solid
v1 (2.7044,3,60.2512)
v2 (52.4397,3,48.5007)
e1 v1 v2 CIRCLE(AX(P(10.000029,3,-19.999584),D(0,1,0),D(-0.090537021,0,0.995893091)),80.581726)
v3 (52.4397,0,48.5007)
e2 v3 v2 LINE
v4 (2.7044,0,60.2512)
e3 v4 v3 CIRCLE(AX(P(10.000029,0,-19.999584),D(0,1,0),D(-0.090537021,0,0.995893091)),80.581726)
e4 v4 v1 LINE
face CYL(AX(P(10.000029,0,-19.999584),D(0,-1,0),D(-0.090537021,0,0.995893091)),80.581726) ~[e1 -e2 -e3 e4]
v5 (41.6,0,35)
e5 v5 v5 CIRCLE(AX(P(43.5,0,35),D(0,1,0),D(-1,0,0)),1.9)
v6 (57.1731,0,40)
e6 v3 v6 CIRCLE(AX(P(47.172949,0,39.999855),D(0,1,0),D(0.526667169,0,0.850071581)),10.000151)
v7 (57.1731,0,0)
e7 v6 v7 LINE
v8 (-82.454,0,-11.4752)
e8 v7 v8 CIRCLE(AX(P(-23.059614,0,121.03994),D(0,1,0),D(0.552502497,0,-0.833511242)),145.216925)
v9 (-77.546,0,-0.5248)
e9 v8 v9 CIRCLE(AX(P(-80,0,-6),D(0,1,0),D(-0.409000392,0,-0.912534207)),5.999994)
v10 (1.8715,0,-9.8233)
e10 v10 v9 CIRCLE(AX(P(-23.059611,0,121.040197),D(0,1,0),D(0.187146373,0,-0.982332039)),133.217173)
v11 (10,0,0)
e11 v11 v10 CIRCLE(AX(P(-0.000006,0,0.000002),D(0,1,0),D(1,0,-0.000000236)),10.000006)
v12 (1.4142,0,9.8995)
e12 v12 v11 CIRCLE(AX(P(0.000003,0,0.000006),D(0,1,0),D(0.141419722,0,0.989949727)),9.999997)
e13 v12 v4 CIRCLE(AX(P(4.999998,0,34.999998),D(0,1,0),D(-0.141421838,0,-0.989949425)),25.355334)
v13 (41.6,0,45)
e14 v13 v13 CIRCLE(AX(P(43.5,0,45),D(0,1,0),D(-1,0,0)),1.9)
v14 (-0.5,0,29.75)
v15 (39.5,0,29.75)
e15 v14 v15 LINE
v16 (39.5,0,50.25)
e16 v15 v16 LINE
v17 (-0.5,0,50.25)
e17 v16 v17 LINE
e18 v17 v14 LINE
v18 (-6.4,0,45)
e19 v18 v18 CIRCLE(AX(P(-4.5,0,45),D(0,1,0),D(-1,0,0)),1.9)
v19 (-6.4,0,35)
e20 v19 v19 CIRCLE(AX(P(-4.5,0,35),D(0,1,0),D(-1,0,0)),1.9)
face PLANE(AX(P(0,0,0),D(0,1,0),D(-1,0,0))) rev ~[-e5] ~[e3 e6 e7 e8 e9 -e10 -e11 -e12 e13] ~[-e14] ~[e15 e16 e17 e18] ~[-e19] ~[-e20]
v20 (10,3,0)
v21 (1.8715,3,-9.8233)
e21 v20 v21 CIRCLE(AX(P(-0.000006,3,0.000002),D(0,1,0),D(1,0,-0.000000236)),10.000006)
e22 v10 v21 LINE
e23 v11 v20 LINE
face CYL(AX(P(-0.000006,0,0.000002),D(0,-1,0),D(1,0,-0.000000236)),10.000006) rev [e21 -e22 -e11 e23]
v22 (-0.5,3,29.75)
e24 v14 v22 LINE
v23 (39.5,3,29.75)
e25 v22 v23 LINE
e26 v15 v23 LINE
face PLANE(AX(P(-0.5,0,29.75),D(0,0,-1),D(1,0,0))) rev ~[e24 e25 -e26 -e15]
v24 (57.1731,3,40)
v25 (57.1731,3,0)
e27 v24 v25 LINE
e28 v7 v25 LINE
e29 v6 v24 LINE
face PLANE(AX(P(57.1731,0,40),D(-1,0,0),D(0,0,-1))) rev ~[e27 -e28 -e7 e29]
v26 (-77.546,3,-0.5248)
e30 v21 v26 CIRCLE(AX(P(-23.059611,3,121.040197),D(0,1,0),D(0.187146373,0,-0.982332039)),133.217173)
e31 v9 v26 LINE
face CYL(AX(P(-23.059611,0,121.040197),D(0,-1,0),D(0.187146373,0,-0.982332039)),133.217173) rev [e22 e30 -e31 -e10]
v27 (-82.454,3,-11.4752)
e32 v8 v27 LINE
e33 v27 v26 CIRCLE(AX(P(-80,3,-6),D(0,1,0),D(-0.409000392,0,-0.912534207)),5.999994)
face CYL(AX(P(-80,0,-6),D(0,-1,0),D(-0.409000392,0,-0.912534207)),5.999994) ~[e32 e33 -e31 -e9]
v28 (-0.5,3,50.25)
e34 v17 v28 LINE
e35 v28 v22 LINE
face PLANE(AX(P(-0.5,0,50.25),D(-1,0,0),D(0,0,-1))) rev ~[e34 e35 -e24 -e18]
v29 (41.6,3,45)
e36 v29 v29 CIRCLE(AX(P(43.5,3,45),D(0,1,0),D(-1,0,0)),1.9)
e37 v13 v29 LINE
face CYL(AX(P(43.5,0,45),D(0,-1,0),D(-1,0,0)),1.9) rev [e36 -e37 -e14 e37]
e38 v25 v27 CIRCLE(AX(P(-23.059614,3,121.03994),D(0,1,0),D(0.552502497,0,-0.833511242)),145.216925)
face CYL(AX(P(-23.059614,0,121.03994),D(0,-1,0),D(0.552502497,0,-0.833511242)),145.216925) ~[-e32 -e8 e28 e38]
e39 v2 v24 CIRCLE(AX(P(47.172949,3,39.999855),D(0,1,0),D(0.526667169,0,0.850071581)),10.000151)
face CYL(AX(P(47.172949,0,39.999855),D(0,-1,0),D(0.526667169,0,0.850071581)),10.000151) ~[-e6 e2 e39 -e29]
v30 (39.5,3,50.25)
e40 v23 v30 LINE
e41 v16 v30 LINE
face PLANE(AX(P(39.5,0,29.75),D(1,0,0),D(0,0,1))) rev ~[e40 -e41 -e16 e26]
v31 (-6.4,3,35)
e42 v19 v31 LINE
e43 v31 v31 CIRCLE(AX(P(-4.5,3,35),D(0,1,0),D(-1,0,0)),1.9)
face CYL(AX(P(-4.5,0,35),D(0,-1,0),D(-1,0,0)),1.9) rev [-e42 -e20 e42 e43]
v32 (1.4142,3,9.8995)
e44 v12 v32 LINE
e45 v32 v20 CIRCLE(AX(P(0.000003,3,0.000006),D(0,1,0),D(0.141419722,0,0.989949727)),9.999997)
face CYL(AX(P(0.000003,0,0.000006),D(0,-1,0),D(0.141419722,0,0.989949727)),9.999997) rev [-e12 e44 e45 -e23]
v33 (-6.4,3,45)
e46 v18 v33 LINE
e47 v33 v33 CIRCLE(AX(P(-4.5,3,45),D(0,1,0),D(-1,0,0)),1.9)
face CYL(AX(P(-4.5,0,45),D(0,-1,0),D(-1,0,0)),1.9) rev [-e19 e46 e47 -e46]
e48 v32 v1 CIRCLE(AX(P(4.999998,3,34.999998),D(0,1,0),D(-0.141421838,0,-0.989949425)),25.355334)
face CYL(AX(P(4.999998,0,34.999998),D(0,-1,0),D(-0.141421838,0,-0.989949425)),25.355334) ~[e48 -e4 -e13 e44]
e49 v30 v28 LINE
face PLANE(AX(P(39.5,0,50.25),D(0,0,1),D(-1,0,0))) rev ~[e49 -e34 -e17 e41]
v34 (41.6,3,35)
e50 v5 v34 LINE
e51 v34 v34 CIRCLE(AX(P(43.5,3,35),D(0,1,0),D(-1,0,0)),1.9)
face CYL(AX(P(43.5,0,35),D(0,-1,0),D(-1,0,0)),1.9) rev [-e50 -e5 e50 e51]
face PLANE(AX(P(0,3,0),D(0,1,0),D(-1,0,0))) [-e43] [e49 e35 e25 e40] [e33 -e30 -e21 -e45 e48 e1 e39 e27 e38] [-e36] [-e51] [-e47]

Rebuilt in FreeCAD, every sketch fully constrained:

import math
import FreeCAD as App
import Part
import Sketcher

V = App.Vector
Q = App.Units.Quantity


def add_polygon(sketch, points):
    """Adds a closed chain of lines whose ends are joined by coincident constraints."""
    first, n = sketch.GeometryCount, len(points)
    for a, b in zip(points, points[1:] + points[:1]):
        sketch.addGeometry(Part.LineSegment(App.Vector(*a, 0), App.Vector(*b, 0)), False)
    for i in range(n):
        sketch.addConstraint(Sketcher.Constraint("Coincident", first + i, 2, first + (i + 1) % n, 1))

doc = App.newDocument("Part")
body = doc.addObject("PartDesign::Body", "Body")

# Sketch on XZ plane
sketch1 = doc.addObject("Sketcher::SketchObject", "Sketch")
body.addObject(sketch1)
sketch1.AttachmentSupport = (doc.XZ_Plane, [""])
sketch1.MapMode = "FlatFace"
sketch1.addGeometry(Part.ArcOfCircle(Part.Circle(V(0, 0, 0), V(0, 0, 1), 10), math.radians(0), math.radians(82)), False)  # 0
sketch1.addGeometry(Part.ArcOfCircle(Part.Circle(V(5, 35, 0), V(0, 0, 1), 25.4), math.radians(95), math.radians(262)), False)  # 1
sketch1.addGeometry(Part.ArcOfCircle(Part.Circle(V(10, -20, 0), V(0, 0, 1), 80.6), math.radians(58), math.radians(95)), False)  # 2
sketch1.addGeometry(Part.ArcOfCircle(Part.Circle(V(47.2, 40, 0), V(0, 0, 1), 10), math.radians(0), math.radians(58)), False)  # 3
sketch1.addGeometry(Part.LineSegment(V(57.2, 40, 0), V(57.2, 0, 0)), False)  # 4
sketch1.addGeometry(Part.ArcOfCircle(Part.Circle(V(-23.1, 121, 0), V(0, 0, 1), 145.2), math.radians(-114), math.radians(-56)), False)  # 5
sketch1.addGeometry(Part.ArcOfCircle(Part.Circle(V(-80, -6, 0), V(0, 0, 1), 6), math.radians(66), math.radians(246)), False)  # 6
sketch1.addGeometry(Part.ArcOfCircle(Part.Circle(V(-23.1, 121, 0), V(0, 0, 1), 133.2), math.radians(-114), math.radians(-79)), False)  # 7
sketch1.addGeometry(Part.ArcOfCircle(Part.Circle(V(0, 0, 0), V(0, 0, 1), 10), math.radians(-79), math.radians(0)), False)  # 8
sketch1.addGeometry(Part.Circle(V(43.5, 35, 0), V(0, 0, 1), 1.9), False)  # 9
sketch1.addGeometry(Part.Circle(V(-4.5, 35, 0), V(0, 0, 1), 1.9), False)  # 10
sketch1.addGeometry(Part.Circle(V(43.5, 45, 0), V(0, 0, 1), 1.9), False)  # 11
add_polygon(sketch1, [(39.5, 29.8), (39.5, 50.2), (-0.5, 50.2), (-0.5, 29.8)])  # lines 12-15
sketch1.addGeometry(Part.Circle(V(-4.5, 45, 0), V(0, 0, 1), 1.9), False)  # 16
sketch1.addConstraint([
    Sketcher.Constraint("Tangent", 0, 2, 1, 2),
    Sketcher.Constraint("Tangent", 1, 1, 2, 2),
    Sketcher.Constraint("Tangent", 2, 1, 3, 2),
    Sketcher.Constraint("Tangent", 3, 1, 4, 1),
    Sketcher.Constraint("Coincident", 4, 2, 5, 2),
    Sketcher.Constraint("Tangent", 5, 1, 6, 2),
    Sketcher.Constraint("Tangent", 6, 1, 7, 1),
    Sketcher.Constraint("Tangent", 7, 2, 8, 1),
    Sketcher.Constraint("Tangent", 8, 2, 0, 1),
    Sketcher.Constraint("Vertical", 4),
    Sketcher.Constraint("Vertical", 12),
    Sketcher.Constraint("Horizontal", 13),
    Sketcher.Constraint("Vertical", 14),
    Sketcher.Constraint("Horizontal", 15),
    Sketcher.Constraint("Coincident", 0, 3, -1, 1),
    Sketcher.Constraint("Coincident", 7, 3, 5, 3),
    Sketcher.Constraint("Equal", 0, 3),
    Sketcher.Constraint("Equal", 3, 8),
    Sketcher.Constraint("Equal", 9, 10),
    Sketcher.Constraint("Equal", 10, 11),
    Sketcher.Constraint("Equal", 11, 16),
    Sketcher.Constraint("PointOnObject", 4, 2, -1),
    Sketcher.Constraint("PointOnObject", 8, 2, -1),
    Sketcher.Constraint("Horizontal", 1, 3, 9, 3),
    Sketcher.Constraint("Horizontal", 9, 3, 10, 3),
    Sketcher.Constraint("Horizontal", 11, 3, 16, 3),
    Sketcher.Constraint("Vertical", 9, 3, 11, 3),
    Sketcher.Constraint("Vertical", 10, 3, 16, 3),
    Sketcher.Constraint("Vertical", 2, 3, 8, 2),
    Sketcher.Constraint("Equal", 15, 4),
    Sketcher.Constraint("Radius", 0, Q("10 mm")),
    Sketcher.Constraint("Radius", 6, Q("6 mm")),
    Sketcher.Constraint("Diameter", 9, Q("3.8 mm")),
    Sketcher.Constraint("DistanceX", 13, 2, 13, 1, Q("40 mm")),
    Sketcher.Constraint("DistanceY", 12, 1, 12, 2, Q("20.5 mm")),
    Sketcher.Constraint("DistanceX", -1, 1, 1, 3, Q("5 mm")),
    Sketcher.Constraint("DistanceY", -1, 1, 1, 3, Q("35 mm")),
    Sketcher.Constraint("DistanceY", 2, 3, -1, 1, Q("20 mm")),
    Sketcher.Constraint("DistanceX", 6, 3, -1, 1, Q("80 mm")),
    Sketcher.Constraint("DistanceX", 10, 3, 9, 3, Q("48 mm")),
    Sketcher.Constraint("DistanceY", 3, 3, 11, 3, Q("5 mm")),
    Sketcher.Constraint("DistanceY", 6, 3, -1, 1, Q("6 mm")),
    Sketcher.Constraint("DistanceX", 12, 2, 11, 3, Q("4 mm")),
    Sketcher.Constraint("DistanceX", -1, 1, 9, 3, Q("43.5 mm")),
    Sketcher.Constraint("DistanceY", -1, 1, 12, 2, Q("50.25 mm")),
])
pad1 = doc.addObject("PartDesign::Pad", "Pad")
body.addObject(pad1)
pad1.Profile = sketch1
pad1.Length = 3
pad1.Reversed = True

doc.recompute()
